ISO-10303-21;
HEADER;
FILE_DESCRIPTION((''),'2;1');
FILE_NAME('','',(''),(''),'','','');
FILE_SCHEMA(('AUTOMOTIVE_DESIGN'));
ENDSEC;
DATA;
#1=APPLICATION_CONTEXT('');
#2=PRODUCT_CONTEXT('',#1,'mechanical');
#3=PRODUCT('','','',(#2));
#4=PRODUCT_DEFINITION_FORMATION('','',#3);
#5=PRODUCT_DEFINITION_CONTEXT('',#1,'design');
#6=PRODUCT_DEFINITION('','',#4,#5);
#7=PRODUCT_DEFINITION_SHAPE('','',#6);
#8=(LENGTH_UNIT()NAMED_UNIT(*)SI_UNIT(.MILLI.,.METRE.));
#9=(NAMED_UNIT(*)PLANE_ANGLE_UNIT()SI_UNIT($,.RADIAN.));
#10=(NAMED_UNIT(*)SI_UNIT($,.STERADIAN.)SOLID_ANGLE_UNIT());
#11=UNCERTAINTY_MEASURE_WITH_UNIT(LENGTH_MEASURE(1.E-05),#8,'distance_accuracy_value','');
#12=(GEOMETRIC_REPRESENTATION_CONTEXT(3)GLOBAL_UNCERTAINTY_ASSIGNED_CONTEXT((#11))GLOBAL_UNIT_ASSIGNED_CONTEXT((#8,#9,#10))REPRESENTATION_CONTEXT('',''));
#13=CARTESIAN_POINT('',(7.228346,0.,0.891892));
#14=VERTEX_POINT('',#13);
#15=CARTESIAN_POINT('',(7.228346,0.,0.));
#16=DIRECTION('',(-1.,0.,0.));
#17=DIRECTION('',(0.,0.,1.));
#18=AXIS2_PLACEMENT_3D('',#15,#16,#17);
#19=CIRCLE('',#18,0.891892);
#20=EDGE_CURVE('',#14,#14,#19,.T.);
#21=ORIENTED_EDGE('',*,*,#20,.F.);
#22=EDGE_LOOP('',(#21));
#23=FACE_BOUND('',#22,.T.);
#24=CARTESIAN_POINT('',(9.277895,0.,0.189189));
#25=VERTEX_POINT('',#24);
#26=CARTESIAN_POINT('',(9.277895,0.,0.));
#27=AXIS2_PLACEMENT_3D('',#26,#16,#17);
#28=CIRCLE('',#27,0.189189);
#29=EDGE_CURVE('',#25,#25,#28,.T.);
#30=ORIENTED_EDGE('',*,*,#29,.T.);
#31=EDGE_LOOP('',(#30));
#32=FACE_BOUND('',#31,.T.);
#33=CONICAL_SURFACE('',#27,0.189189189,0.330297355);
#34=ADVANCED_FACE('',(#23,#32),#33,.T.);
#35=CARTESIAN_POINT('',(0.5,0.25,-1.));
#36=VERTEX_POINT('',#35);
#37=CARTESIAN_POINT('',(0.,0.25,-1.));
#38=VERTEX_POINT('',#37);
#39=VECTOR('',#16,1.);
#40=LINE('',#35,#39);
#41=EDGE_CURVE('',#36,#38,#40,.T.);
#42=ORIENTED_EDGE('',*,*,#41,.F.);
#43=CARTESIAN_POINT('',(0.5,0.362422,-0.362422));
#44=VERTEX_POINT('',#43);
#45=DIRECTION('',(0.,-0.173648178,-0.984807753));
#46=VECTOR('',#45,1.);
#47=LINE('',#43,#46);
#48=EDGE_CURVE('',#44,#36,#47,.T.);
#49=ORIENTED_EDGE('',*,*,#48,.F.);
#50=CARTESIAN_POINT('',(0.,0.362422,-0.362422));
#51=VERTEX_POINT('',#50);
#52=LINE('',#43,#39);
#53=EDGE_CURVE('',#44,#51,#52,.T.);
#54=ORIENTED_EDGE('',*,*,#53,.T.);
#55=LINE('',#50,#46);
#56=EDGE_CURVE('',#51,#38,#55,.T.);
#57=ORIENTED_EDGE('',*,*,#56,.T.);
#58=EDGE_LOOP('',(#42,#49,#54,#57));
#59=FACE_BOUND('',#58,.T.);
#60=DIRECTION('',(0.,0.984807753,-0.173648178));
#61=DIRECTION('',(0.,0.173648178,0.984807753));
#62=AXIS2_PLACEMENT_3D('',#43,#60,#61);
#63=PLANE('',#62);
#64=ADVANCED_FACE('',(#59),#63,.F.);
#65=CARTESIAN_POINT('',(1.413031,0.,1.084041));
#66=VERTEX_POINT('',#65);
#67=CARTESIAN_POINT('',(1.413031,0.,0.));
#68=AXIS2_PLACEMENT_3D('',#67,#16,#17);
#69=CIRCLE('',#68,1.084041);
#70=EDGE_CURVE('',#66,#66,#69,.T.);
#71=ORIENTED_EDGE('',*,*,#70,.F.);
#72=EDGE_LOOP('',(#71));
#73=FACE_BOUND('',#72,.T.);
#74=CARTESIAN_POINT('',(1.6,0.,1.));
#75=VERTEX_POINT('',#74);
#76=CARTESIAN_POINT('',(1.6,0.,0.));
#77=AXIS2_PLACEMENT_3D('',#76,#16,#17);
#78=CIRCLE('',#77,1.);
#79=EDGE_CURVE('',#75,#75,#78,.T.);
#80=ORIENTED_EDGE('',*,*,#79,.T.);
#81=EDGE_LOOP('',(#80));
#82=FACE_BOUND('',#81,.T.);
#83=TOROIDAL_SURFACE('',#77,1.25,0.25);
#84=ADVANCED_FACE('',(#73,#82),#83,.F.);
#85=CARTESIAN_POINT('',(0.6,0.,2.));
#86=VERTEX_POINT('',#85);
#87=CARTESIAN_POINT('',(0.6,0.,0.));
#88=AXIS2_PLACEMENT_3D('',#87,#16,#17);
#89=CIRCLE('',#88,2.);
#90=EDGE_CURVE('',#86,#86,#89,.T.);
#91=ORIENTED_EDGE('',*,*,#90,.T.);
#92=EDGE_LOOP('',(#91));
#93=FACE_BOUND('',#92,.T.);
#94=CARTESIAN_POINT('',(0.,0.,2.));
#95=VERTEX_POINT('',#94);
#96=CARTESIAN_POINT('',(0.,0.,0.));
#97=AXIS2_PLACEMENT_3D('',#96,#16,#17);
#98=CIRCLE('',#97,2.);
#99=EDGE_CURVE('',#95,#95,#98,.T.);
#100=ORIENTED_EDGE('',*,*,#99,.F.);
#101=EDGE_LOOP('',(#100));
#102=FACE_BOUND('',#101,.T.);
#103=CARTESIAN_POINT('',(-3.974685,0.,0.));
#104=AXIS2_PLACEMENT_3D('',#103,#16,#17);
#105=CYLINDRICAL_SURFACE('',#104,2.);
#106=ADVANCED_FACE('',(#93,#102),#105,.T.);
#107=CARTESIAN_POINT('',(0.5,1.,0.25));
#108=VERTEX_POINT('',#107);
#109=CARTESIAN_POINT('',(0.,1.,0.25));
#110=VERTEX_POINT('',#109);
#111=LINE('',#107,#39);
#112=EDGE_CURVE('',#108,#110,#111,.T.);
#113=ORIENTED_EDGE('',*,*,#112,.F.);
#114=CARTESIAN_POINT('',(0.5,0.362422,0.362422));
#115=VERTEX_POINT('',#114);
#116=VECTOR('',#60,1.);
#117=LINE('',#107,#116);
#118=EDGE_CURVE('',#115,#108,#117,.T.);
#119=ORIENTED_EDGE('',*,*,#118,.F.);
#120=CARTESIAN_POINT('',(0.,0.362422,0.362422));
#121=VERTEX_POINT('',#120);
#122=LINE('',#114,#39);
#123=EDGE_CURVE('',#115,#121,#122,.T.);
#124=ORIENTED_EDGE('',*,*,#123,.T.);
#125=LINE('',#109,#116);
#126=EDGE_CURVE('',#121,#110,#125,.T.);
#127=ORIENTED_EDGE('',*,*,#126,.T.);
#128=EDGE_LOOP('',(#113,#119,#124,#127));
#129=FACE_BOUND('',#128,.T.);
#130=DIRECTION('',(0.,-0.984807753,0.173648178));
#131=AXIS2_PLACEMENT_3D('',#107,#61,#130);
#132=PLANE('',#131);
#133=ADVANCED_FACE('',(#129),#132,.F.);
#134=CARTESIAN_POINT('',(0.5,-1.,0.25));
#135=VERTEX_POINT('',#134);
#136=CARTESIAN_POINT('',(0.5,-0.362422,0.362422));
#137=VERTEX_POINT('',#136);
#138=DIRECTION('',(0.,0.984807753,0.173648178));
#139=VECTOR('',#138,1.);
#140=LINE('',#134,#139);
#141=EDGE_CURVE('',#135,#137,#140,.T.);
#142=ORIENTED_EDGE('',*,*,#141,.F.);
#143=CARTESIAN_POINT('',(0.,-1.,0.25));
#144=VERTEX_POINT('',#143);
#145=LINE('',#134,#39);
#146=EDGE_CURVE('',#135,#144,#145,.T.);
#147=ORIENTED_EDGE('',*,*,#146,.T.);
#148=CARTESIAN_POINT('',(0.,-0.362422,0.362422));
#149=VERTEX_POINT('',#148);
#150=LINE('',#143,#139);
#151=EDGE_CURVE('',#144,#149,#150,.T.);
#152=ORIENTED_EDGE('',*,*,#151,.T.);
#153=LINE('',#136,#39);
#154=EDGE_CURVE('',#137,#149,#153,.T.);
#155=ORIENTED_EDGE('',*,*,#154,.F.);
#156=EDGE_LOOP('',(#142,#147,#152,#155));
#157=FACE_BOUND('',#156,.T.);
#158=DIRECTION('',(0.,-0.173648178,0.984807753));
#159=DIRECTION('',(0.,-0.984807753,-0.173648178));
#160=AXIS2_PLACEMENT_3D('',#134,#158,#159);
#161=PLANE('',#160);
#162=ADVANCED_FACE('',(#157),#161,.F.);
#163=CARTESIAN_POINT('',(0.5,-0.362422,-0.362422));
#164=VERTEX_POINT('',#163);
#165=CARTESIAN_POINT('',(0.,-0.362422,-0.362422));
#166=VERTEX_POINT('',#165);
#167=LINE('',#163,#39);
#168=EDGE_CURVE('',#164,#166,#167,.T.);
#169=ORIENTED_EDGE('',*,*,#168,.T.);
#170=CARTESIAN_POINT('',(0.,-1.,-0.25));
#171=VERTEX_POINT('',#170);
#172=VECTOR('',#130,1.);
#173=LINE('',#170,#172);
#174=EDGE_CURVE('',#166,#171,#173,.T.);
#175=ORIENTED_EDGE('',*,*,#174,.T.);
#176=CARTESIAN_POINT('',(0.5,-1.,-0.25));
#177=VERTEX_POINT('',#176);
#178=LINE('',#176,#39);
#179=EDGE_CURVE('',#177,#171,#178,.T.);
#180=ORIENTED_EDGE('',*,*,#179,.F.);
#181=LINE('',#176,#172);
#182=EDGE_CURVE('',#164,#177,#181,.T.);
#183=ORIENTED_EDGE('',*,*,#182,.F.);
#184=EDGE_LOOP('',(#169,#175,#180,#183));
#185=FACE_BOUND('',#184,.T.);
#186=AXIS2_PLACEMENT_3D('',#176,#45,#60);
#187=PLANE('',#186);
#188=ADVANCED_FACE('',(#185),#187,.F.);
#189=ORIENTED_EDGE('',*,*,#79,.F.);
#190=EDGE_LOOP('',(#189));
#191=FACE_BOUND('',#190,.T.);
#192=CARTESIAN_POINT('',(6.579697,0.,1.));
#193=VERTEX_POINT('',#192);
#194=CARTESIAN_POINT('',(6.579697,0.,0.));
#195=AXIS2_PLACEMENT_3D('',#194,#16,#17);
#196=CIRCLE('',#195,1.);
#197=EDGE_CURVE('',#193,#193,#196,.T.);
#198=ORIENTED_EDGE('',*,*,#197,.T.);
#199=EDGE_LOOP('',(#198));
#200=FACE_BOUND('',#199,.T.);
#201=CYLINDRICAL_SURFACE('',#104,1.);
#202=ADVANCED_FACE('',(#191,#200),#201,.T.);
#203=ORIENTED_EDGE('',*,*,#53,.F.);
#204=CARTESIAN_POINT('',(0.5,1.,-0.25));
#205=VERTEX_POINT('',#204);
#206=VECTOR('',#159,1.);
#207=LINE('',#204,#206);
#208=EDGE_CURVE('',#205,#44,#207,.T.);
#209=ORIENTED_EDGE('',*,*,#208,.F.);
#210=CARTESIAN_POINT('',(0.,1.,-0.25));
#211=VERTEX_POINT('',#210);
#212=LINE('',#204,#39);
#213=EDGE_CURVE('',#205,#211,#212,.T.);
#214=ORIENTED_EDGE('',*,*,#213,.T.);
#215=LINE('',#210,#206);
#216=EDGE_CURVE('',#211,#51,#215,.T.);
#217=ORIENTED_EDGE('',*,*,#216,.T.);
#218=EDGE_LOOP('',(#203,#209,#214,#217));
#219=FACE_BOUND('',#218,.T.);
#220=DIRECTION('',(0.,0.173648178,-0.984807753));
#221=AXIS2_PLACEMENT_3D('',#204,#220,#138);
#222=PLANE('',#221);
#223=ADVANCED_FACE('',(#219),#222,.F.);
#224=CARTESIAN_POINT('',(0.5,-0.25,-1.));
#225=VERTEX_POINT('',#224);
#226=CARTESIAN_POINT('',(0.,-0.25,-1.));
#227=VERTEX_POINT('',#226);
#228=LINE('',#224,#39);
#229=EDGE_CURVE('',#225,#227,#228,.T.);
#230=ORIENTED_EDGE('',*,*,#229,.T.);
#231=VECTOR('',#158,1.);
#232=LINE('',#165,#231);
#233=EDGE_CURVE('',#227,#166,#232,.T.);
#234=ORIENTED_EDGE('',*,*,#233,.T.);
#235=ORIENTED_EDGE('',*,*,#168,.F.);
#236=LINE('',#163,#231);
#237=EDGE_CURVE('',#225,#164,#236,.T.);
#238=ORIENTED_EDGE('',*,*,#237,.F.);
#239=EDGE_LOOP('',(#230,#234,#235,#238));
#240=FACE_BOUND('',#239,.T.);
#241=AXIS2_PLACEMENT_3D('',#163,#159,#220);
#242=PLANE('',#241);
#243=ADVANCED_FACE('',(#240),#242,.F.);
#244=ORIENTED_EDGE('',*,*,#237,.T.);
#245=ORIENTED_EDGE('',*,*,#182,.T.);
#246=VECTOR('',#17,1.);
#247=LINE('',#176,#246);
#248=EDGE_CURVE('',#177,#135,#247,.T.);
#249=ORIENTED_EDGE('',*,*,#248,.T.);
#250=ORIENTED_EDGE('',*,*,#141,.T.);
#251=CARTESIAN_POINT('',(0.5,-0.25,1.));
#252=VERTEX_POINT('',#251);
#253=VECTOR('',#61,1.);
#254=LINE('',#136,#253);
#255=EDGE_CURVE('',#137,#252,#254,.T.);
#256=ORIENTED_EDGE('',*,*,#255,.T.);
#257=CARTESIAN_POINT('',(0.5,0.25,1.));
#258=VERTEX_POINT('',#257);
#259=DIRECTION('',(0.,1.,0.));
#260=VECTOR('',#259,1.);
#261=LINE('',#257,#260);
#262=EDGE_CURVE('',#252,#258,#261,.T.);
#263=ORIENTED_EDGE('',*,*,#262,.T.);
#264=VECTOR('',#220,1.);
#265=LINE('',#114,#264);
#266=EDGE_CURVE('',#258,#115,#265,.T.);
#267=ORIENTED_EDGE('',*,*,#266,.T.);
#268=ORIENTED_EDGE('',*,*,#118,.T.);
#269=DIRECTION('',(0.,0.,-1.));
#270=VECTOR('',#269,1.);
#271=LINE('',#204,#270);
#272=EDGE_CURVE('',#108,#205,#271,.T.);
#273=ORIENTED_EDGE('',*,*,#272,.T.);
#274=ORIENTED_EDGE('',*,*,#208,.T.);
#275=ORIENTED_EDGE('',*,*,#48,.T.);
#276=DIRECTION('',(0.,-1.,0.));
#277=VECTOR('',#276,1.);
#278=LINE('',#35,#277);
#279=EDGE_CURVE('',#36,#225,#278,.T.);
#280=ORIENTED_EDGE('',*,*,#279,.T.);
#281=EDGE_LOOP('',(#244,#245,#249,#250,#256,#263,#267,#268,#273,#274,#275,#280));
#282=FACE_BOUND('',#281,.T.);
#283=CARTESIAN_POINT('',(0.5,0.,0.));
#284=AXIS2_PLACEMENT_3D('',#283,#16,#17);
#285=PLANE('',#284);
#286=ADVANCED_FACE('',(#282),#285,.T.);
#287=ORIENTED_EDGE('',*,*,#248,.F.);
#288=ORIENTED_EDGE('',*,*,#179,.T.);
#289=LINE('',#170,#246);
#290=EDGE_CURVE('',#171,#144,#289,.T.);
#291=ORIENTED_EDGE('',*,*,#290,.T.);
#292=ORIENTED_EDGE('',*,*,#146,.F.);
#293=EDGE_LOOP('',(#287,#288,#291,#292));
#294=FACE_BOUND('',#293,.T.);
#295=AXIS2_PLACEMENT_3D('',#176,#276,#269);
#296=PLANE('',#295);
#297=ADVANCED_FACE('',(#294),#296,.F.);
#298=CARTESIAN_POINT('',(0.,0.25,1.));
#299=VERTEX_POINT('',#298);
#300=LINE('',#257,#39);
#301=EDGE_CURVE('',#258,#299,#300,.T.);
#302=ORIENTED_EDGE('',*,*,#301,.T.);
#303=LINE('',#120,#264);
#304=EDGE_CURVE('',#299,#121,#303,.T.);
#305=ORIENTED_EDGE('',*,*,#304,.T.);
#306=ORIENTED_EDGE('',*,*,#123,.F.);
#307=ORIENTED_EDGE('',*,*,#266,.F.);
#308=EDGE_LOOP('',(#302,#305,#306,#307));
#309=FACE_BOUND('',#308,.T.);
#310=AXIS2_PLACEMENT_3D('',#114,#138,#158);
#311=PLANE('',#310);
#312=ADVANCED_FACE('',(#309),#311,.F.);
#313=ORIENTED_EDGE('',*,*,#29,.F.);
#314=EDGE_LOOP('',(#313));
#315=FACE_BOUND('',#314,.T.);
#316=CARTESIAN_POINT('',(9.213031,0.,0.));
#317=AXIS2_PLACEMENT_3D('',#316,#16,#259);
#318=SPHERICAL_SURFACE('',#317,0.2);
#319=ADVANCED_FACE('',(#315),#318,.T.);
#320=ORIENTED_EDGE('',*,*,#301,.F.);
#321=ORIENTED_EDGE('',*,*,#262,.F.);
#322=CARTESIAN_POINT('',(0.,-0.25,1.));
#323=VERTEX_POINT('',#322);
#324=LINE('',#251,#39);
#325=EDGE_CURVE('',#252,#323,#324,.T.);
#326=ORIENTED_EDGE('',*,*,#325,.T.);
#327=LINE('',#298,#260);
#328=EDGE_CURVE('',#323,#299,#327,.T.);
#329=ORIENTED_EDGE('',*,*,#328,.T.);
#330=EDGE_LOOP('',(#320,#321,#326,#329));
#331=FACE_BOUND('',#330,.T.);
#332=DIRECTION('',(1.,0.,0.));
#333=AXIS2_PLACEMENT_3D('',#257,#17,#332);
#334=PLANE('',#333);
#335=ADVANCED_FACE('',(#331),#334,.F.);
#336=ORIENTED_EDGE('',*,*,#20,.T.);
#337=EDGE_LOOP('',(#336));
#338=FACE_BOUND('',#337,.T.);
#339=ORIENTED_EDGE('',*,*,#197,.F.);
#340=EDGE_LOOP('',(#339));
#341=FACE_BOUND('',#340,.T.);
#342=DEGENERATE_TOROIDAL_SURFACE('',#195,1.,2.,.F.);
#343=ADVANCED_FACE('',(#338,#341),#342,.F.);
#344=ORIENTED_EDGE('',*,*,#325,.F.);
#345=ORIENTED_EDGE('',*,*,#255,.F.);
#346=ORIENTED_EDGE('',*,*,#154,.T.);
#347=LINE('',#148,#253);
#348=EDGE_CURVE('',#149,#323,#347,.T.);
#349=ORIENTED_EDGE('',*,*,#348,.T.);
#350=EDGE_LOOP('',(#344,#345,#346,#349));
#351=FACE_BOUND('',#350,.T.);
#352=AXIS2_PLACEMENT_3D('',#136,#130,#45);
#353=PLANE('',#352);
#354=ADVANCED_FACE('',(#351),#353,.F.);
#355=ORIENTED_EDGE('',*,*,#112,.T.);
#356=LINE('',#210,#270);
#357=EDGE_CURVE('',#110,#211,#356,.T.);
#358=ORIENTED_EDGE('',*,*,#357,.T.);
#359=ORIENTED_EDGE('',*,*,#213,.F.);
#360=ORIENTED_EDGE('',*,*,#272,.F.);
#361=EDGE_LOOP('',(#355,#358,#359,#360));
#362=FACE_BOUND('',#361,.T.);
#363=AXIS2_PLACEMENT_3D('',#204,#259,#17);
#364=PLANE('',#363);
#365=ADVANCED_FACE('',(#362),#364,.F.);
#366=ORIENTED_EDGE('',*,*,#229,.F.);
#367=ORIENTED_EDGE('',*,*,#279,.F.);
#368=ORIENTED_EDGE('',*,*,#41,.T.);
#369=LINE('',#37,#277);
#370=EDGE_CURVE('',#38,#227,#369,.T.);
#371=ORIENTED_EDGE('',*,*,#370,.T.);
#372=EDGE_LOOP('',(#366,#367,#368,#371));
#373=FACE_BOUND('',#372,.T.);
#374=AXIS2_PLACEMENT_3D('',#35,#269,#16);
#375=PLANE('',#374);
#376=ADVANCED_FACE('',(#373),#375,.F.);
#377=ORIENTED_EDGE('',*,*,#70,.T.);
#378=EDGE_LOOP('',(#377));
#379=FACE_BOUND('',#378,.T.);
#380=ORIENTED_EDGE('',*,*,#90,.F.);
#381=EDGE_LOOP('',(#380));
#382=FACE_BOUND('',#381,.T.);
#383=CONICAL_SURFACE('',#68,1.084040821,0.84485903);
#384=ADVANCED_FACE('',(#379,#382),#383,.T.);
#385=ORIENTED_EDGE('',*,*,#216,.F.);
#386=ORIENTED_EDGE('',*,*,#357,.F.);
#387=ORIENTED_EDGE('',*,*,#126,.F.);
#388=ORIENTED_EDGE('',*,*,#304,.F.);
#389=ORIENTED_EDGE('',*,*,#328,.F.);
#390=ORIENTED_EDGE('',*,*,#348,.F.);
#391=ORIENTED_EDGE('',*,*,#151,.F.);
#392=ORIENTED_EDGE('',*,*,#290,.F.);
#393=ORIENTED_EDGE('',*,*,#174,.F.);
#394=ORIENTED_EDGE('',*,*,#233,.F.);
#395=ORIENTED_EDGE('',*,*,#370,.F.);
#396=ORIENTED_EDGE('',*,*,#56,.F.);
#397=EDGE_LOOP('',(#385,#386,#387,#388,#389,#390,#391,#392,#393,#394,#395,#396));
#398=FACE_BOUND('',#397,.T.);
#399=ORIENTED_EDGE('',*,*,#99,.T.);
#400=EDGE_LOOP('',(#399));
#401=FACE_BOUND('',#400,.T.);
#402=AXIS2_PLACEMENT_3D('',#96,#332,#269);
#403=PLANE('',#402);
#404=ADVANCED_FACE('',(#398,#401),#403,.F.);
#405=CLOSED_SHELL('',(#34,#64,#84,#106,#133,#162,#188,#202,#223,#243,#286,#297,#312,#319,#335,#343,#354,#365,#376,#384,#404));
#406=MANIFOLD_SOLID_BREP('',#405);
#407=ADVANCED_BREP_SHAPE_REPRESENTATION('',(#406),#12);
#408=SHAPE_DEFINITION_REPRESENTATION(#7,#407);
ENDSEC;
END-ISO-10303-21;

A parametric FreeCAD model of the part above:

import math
import FreeCAD as App
import Part
import Sketcher

V = App.Vector
Q = App.Units.Quantity


def add_polygon(sketch, points):
    """Adds a closed chain of lines whose ends are joined by coincident constraints."""
    first, n = sketch.GeometryCount, len(points)
    for a, b in zip(points, points[1:] + points[:1]):
        sketch.addGeometry(Part.LineSegment(App.Vector(*a, 0), App.Vector(*b, 0)), False)
    for i in range(n):
        sketch.addConstraint(Sketcher.Constraint("Coincident", first + i, 2, first + (i + 1) % n, 1))

doc = App.newDocument("Part")
body = doc.addObject("PartDesign::Body", "Body")

# Sketch on XY plane
sketch1 = body.newObject("Sketcher::SketchObject", "Sketch")
sketch1.AttachmentSupport = (doc.getObject("XY_Plane"), [""])
sketch1.MapMode = "FlatFace"
sketch1.addGeometry([
    Part.LineSegment(V(0, 2, 0), V(0, 0, 0)),  # 0
    Part.LineSegment(V(0, 0, 0), V(9.41, 0, 0)),  # 1
    Part.ArcOfCircle(Part.Circle(V(9.21, 0, 0), V(0, 0, 1), 0.2), math.radians(0), math.radians(71)),  # 2
    Part.LineSegment(V(9.28, 0.19, 0), V(7.23, 0.89, 0)),  # 3
    Part.ArcOfCircle(Part.Circle(V(6.58, -1, 0), V(0, 0, 1), 2), math.radians(71.08), math.radians(90)),  # 4
    Part.LineSegment(V(6.58, 1, 0), V(1.6, 1, 0)),  # 5
    Part.ArcOfCircle(Part.Circle(V(1.6, 1.25, 0), V(0, 0, 1), 0.25), math.radians(-138), math.radians(-90)),  # 6
    Part.LineSegment(V(1.41, 1.08, 0), V(0.6, 2, 0)),  # 7
    Part.LineSegment(V(0.6, 2, 0), V(0, 2, 0)),  # 8
], False)
sketch1.addConstraint([
    Sketcher.Constraint("Coincident", 0, 2, 1, 1),
    Sketcher.Constraint("Coincident", 1, 2, 2, 1),
    Sketcher.Constraint("Tangent", 2, 2, 3, 1),
    Sketcher.Constraint("Tangent", 3, 2, 4, 1),
    Sketcher.Constraint("Tangent", 4, 2, 5, 1),
    Sketcher.Constraint("Tangent", 5, 2, 6, 2),
    Sketcher.Constraint("Tangent", 6, 1, 7, 1),
    Sketcher.Constraint("Coincident", 7, 2, 8, 1),
    Sketcher.Constraint("Coincident", 8, 2, 0, 1),
    Sketcher.Constraint("Vertical", 0),
    Sketcher.Constraint("Horizontal", 1),
    Sketcher.Constraint("Horizontal", 5),
    Sketcher.Constraint("Horizontal", 8),
    Sketcher.Constraint("Coincident", 0, 2, -1, 1),
    Sketcher.Constraint("PointOnObject", 2, 3, -1),
    Sketcher.Constraint("Radius", 4, 2.0),
    Sketcher.Constraint("Radius", 2, 0.2),
    Sketcher.Constraint("DistanceY", 0, 2, 0, 1, 2.0),
    Sketcher.Constraint("Radius", 6, 0.25),
    Sketcher.Constraint("DistanceX", 8, 2, 8, 1, 0.6),
    Sketcher.Constraint("DistanceY", 4, 3, -1, 1, 1.0),
    Sketcher.Constraint("DistanceX", 7, 2, 6, 3, 1.0),
    Sketcher.Constraint("DistanceX", 1, 1, 1, 2, 9.413031),
    Sketcher.Constraint("DistanceX", 4, 3, 2, 2, 2.698198),
])
revolution = body.newObject("PartDesign::Revolution", "Revolution")
revolution.Profile = sketch1
revolution.ReferenceAxis = (sketch1, ["H_Axis"])
revolution.Angle = 360

# Sketch on YZ plane
sketch2 = body.newObject("Sketcher::SketchObject", "Sketch001")
sketch2.AttachmentSupport = (doc.getObject("YZ_Plane"), [""])
sketch2.MapMode = "FlatFace"
add_polygon(sketch2, [(1, 0.2), (1, -0.2), (0.4, -0.4), (0.2, -1), (-0.2, -1), (-0.4, -0.4), (-1, -0.2), (-1, 0.2), (-0.4, 0.4), (-0.2, 1), (0.2, 1), (0.4, 0.4)])  # lines 0-11
sketch2.addConstraint([
    Sketcher.Constraint("Vertical", 0),
    Sketcher.Constraint("Horizontal", 3),
    Sketcher.Constraint("Vertical", 6),
    Sketcher.Constraint("Horizontal", 9),
    Sketcher.Constraint("Symmetric", 0, 2, 6, 2, -1, 1),
    Sketcher.Constraint("Symmetric", 1, 2, 7, 2, -1, 1),
    Sketcher.Constraint("Symmetric", 2, 2, 8, 2, -1, 1),
    Sketcher.Constraint("Symmetric", 4, 2, 10, 2, -1, 1),
    Sketcher.Constraint("Symmetric", 1, 2, 4, 2, -2),
    Sketcher.Constraint("Perpendicular", 1, 4),
    Sketcher.Constraint("Perpendicular", 2, 5),
    Sketcher.Constraint("Perpendicular", 7, 10),
    Sketcher.Constraint("Perpendicular", 8, 11),
    Sketcher.Constraint("Horizontal", 0, 2, 5, 2),
    Sketcher.Constraint("Equal", 9, 0),
    Sketcher.Constraint("Equal", 1, 2),
    Sketcher.Constraint("Angle", 1, Q("-170 deg")),
    Sketcher.Constraint("DistanceX", 3, 2, 3, 1, 0.5),
    Sketcher.Constraint("DistanceX", -1, 1, 0, 2, 1.0),
])
pocket1 = body.newObject("PartDesign::Pocket", "Pocket")
pocket1.Profile = sketch2
pocket1.Length = 0.5
pocket1.Reversed = True

doc.recompute()
